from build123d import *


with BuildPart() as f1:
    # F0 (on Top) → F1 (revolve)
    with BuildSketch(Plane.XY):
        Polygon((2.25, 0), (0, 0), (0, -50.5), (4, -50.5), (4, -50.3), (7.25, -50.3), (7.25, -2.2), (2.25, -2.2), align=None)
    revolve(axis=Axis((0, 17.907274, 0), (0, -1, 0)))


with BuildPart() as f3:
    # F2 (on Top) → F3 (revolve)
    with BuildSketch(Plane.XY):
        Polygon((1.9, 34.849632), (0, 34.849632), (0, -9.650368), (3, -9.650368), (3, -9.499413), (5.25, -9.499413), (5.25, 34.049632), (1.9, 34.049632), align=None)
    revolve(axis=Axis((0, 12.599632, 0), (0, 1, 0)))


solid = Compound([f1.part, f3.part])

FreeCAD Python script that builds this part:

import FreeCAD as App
import Part
import Sketcher
from FreeCAD import Vector


def add_polygon(sketch, points):
    """Adds a closed chain of lines whose ends are joined by coincident constraints."""
    first, n = sketch.GeometryCount, len(points)
    for a, b in zip(points, points[1:] + points[:1]):
        sketch.addGeometry(Part.LineSegment(App.Vector(*a, 0), App.Vector(*b, 0)), False)
    for i in range(n):
        sketch.addConstraint(Sketcher.Constraint("Coincident", first + i, 2, first + (i + 1) % n, 1))

doc = App.newDocument("Part")
params = doc.addObject("Spreadsheet::Sheet", "Params")
for row, (alias, value) in enumerate([
    ("sketch1_width", "4 mm"),
    ("sketch1_width2", "5 mm"),
    ("sketch1_height", "50.5 mm"),
    ("sketch1_height2", "0.2 mm"),
    ("sketch1_height3", "48.1 mm"),
    ("revolution_angle", "360 deg"),
    ("sketch2_width", "3 mm"),
    ("sketch2_width2", "1.9 mm"),
    ("sketch2_height", "44.5 mm"),
    ("sketch2_height2", "0.8 mm"),
    ("sketch2_width3", "2.25 mm"),
    ("revolution2_angle", "360 deg"),
], start=1):
    params.set(f"A{row}", alias)
    params.set(f"B{row}", "=" + value)
    params.setAlias(f"B{row}", alias)

body = doc.addObject("PartDesign::Body", "Body")

# Sketch on XY plane
sketch1 = doc.addObject("Sketcher::SketchObject", "Sketch")
body.addObject(sketch1)
sketch1.AttachmentSupport = (doc.XY_Plane, [""])
sketch1.MapMode = "FlatFace"
add_polygon(sketch1, [(2.25, 0), (0, 0), (0, -50.5), (4, -50.5), (4, -50.3), (7.25, -50.3), (7.25, -2.2), (2.25, -2.2)])  # lines 0-7
sketch1.addConstraint([
    Sketcher.Constraint("Horizontal", 0),
    Sketcher.Constraint("Vertical", 1),
    Sketcher.Constraint("Horizontal", 2),
    Sketcher.Constraint("Vertical", 3),
    Sketcher.Constraint("Horizontal", 4),
    Sketcher.Constraint("Vertical", 5),
    Sketcher.Constraint("Horizontal", 6),
    Sketcher.Constraint("Vertical", 7),
    Sketcher.Constraint("Coincident", 0, 2, -1, 1),
    Sketcher.Constraint("DistanceX", 2, 1, 2, 2, 4.0),
    Sketcher.Constraint("DistanceX", 6, 2, 6, 1, 5.0),
    Sketcher.Constraint("DistanceY", 1, 2, 1, 1, 50.5),
    Sketcher.Constraint("DistanceY", 3, 1, 3, 2, 0.2),
    Sketcher.Constraint("DistanceY", 5, 1, 5, 2, 48.1),
    Sketcher.Constraint("DistanceX", 0, 2, 0, 1, 2.25),
])
sketch1.setExpression("Constraints[17]", "Params.sketch1_width")
sketch1.setExpression("Constraints[18]", "Params.sketch1_width2")
sketch1.setExpression("Constraints[19]", "Params.sketch1_height")
sketch1.setExpression("Constraints[20]", "Params.sketch1_height2")
sketch1.setExpression("Constraints[21]", "Params.sketch1_height3")
revolution = doc.addObject("PartDesign::Revolution", "Revolution")
body.addObject(revolution)
revolution.Profile = sketch1
revolution.ReferenceAxis = (sketch1, ["V_Axis"])
revolution.setExpression("Angle", "Params.revolution_angle")
body2 = doc.addObject("PartDesign::Body", "Body001")

# Sketch on XY plane
sketch2 = doc.addObject("Sketcher::SketchObject", "Sketch001")
body2.addObject(sketch2)
sketch2.AttachmentSupport = (doc.getObject("XY_Plane001"), [""])
sketch2.MapMode = "FlatFace"
add_polygon(sketch2, [(1.9, 34.85), (0, 34.85), (0, -9.65), (3, -9.65), (3, -9.5), (5.25, -9.5), (5.25, 34.05), (1.9, 34.05)])  # lines 0-7
sketch2.addConstraint([
    Sketcher.Constraint("Horizontal", 0),
    Sketcher.Constraint("Vertical", 1),
    Sketcher.Constraint("Horizontal", 2),
    Sketcher.Constraint("Vertical", 3),
    Sketcher.Constraint("Horizontal", 4),
    Sketcher.Constraint("Vertical", 5),
    Sketcher.Constraint("Horizontal", 6),
    Sketcher.Constraint("Vertical", 7),
    Sketcher.Constraint("PointOnObject", 0, 2, -2),
    Sketcher.Constraint("DistanceX", 2, 1, 2, 2, 3.0),
    Sketcher.Constraint("DistanceX", 0, 2, 0, 1, 1.9),
    Sketcher.Constraint("DistanceY", 1, 2, 1, 1, 44.5),
    Sketcher.Constraint("DistanceY", 7, 1, 7, 2, 0.8),
    Sketcher.Constraint("DistanceX", 4, 1, 4, 2, 2.25),
    Sketcher.Constraint("DistanceY", 3, 1, 3, 2, 0.150955),
    Sketcher.Constraint("DistanceY", -1, 1, 0, 2, 34.849632),
])
sketch2.setExpression("Constraints[17]", "Params.sketch2_width")
sketch2.setExpression("Constraints[18]", "Params.sketch2_width2")
sketch2.setExpression("Constraints[19]", "Params.sketch2_height")
sketch2.setExpression("Constraints[20]", "Params.sketch2_height2")
sketch2.setExpression("Constraints[21]", "Params.sketch2_width3")
revolution2 = doc.addObject("PartDesign::Revolution", "Revolution001")
body2.addObject(revolution2)
revolution2.Profile = sketch2
revolution2.ReferenceAxis = (sketch2, ["V_Axis"])
revolution2.setExpression("Angle", "Params.revolution2_angle")

doc.recompute()
